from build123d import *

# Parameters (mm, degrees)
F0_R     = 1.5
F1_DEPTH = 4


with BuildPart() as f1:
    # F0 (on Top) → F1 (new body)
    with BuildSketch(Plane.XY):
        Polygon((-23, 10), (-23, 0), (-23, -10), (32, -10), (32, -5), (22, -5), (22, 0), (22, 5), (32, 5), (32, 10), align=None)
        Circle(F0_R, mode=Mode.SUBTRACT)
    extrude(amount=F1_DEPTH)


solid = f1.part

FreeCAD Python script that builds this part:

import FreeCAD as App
import Part
import Sketcher
from FreeCAD import Vector
Q = App.Units.Quantity

doc = App.newDocument("Part")
body = doc.addObject("PartDesign::Body", "Body")

sketch1 = body.newObject("Sketcher::SketchObject", "Sketch")
sketch1.AttachmentSupport = (doc.getObject("XY_Plane"), [""])
sketch1.MapMode = "FlatFace"
sketch1.addGeometry([
    Part.LineSegment(Vector(-23, 10, 0), Vector(-23, -10, 0)),
    Part.LineSegment(Vector(-23, -10, 0), Vector(32, -10, 0)),
    Part.LineSegment(Vector(32, -10, 0), Vector(32, -5, 0)),
    Part.LineSegment(Vector(32, -5, 0), Vector(22, -5, 0)),
    Part.LineSegment(Vector(22, -5, 0), Vector(22, 5, 0)),
    Part.LineSegment(Vector(22, 5, 0), Vector(32, 5, 0)),
    Part.LineSegment(Vector(32, 5, 0), Vector(32, 10, 0)),
    Part.LineSegment(Vector(32, 10, 0), Vector(-23, 10, 0)),
    Part.Circle(Vector(0, 0, 0), Vector(0, 0, 1), 1.5),
], False)
sketch1.addConstraint([
    Sketcher.Constraint("Coincident", 0, 2, 1, 1),
    Sketcher.Constraint("Coincident", 1, 2, 2, 1),
    Sketcher.Constraint("Coincident", 2, 2, 3, 1),
    Sketcher.Constraint("Coincident", 3, 2, 4, 1),
    Sketcher.Constraint("Coincident", 4, 2, 5, 1),
    Sketcher.Constraint("Coincident", 5, 2, 6, 1),
    Sketcher.Constraint("Coincident", 6, 2, 7, 1),
    Sketcher.Constraint("Coincident", 7, 2, 0, 1),
    Sketcher.Constraint("Vertical", 0),
    Sketcher.Constraint("Horizontal", 1),
    Sketcher.Constraint("Vertical", 2),
    Sketcher.Constraint("Horizontal", 3),
    Sketcher.Constraint("Vertical", 4),
    Sketcher.Constraint("Horizontal", 5),
    Sketcher.Constraint("Vertical", 6),
    Sketcher.Constraint("Horizontal", 7),
    Sketcher.Constraint("Coincident", 8, 3, -1, 1),
    Sketcher.Constraint("Symmetric", 2, 2, 5, 2, -1),
    Sketcher.Constraint("Equal", 5, 4),
    Sketcher.Constraint("Equal", 2, 6),
    Sketcher.Constraint("Diameter", 8, Q("3 mm")),
    Sketcher.Constraint("DistanceX", 1, 1, 1, 2, Q("55 mm")),
    Sketcher.Constraint("DistanceX", 3, 2, 3, 1, Q("10 mm")),
    Sketcher.Constraint("DistanceY", 0, 2, 0, 1, Q("20 mm")),
    Sketcher.Constraint("DistanceX", 0, 2, -1, 1, Q("23 mm")),
])
pad1 = body.newObject("PartDesign::Pad", "Pad")
pad1.Profile = sketch1
pad1.Length = 4

doc.recompute()
